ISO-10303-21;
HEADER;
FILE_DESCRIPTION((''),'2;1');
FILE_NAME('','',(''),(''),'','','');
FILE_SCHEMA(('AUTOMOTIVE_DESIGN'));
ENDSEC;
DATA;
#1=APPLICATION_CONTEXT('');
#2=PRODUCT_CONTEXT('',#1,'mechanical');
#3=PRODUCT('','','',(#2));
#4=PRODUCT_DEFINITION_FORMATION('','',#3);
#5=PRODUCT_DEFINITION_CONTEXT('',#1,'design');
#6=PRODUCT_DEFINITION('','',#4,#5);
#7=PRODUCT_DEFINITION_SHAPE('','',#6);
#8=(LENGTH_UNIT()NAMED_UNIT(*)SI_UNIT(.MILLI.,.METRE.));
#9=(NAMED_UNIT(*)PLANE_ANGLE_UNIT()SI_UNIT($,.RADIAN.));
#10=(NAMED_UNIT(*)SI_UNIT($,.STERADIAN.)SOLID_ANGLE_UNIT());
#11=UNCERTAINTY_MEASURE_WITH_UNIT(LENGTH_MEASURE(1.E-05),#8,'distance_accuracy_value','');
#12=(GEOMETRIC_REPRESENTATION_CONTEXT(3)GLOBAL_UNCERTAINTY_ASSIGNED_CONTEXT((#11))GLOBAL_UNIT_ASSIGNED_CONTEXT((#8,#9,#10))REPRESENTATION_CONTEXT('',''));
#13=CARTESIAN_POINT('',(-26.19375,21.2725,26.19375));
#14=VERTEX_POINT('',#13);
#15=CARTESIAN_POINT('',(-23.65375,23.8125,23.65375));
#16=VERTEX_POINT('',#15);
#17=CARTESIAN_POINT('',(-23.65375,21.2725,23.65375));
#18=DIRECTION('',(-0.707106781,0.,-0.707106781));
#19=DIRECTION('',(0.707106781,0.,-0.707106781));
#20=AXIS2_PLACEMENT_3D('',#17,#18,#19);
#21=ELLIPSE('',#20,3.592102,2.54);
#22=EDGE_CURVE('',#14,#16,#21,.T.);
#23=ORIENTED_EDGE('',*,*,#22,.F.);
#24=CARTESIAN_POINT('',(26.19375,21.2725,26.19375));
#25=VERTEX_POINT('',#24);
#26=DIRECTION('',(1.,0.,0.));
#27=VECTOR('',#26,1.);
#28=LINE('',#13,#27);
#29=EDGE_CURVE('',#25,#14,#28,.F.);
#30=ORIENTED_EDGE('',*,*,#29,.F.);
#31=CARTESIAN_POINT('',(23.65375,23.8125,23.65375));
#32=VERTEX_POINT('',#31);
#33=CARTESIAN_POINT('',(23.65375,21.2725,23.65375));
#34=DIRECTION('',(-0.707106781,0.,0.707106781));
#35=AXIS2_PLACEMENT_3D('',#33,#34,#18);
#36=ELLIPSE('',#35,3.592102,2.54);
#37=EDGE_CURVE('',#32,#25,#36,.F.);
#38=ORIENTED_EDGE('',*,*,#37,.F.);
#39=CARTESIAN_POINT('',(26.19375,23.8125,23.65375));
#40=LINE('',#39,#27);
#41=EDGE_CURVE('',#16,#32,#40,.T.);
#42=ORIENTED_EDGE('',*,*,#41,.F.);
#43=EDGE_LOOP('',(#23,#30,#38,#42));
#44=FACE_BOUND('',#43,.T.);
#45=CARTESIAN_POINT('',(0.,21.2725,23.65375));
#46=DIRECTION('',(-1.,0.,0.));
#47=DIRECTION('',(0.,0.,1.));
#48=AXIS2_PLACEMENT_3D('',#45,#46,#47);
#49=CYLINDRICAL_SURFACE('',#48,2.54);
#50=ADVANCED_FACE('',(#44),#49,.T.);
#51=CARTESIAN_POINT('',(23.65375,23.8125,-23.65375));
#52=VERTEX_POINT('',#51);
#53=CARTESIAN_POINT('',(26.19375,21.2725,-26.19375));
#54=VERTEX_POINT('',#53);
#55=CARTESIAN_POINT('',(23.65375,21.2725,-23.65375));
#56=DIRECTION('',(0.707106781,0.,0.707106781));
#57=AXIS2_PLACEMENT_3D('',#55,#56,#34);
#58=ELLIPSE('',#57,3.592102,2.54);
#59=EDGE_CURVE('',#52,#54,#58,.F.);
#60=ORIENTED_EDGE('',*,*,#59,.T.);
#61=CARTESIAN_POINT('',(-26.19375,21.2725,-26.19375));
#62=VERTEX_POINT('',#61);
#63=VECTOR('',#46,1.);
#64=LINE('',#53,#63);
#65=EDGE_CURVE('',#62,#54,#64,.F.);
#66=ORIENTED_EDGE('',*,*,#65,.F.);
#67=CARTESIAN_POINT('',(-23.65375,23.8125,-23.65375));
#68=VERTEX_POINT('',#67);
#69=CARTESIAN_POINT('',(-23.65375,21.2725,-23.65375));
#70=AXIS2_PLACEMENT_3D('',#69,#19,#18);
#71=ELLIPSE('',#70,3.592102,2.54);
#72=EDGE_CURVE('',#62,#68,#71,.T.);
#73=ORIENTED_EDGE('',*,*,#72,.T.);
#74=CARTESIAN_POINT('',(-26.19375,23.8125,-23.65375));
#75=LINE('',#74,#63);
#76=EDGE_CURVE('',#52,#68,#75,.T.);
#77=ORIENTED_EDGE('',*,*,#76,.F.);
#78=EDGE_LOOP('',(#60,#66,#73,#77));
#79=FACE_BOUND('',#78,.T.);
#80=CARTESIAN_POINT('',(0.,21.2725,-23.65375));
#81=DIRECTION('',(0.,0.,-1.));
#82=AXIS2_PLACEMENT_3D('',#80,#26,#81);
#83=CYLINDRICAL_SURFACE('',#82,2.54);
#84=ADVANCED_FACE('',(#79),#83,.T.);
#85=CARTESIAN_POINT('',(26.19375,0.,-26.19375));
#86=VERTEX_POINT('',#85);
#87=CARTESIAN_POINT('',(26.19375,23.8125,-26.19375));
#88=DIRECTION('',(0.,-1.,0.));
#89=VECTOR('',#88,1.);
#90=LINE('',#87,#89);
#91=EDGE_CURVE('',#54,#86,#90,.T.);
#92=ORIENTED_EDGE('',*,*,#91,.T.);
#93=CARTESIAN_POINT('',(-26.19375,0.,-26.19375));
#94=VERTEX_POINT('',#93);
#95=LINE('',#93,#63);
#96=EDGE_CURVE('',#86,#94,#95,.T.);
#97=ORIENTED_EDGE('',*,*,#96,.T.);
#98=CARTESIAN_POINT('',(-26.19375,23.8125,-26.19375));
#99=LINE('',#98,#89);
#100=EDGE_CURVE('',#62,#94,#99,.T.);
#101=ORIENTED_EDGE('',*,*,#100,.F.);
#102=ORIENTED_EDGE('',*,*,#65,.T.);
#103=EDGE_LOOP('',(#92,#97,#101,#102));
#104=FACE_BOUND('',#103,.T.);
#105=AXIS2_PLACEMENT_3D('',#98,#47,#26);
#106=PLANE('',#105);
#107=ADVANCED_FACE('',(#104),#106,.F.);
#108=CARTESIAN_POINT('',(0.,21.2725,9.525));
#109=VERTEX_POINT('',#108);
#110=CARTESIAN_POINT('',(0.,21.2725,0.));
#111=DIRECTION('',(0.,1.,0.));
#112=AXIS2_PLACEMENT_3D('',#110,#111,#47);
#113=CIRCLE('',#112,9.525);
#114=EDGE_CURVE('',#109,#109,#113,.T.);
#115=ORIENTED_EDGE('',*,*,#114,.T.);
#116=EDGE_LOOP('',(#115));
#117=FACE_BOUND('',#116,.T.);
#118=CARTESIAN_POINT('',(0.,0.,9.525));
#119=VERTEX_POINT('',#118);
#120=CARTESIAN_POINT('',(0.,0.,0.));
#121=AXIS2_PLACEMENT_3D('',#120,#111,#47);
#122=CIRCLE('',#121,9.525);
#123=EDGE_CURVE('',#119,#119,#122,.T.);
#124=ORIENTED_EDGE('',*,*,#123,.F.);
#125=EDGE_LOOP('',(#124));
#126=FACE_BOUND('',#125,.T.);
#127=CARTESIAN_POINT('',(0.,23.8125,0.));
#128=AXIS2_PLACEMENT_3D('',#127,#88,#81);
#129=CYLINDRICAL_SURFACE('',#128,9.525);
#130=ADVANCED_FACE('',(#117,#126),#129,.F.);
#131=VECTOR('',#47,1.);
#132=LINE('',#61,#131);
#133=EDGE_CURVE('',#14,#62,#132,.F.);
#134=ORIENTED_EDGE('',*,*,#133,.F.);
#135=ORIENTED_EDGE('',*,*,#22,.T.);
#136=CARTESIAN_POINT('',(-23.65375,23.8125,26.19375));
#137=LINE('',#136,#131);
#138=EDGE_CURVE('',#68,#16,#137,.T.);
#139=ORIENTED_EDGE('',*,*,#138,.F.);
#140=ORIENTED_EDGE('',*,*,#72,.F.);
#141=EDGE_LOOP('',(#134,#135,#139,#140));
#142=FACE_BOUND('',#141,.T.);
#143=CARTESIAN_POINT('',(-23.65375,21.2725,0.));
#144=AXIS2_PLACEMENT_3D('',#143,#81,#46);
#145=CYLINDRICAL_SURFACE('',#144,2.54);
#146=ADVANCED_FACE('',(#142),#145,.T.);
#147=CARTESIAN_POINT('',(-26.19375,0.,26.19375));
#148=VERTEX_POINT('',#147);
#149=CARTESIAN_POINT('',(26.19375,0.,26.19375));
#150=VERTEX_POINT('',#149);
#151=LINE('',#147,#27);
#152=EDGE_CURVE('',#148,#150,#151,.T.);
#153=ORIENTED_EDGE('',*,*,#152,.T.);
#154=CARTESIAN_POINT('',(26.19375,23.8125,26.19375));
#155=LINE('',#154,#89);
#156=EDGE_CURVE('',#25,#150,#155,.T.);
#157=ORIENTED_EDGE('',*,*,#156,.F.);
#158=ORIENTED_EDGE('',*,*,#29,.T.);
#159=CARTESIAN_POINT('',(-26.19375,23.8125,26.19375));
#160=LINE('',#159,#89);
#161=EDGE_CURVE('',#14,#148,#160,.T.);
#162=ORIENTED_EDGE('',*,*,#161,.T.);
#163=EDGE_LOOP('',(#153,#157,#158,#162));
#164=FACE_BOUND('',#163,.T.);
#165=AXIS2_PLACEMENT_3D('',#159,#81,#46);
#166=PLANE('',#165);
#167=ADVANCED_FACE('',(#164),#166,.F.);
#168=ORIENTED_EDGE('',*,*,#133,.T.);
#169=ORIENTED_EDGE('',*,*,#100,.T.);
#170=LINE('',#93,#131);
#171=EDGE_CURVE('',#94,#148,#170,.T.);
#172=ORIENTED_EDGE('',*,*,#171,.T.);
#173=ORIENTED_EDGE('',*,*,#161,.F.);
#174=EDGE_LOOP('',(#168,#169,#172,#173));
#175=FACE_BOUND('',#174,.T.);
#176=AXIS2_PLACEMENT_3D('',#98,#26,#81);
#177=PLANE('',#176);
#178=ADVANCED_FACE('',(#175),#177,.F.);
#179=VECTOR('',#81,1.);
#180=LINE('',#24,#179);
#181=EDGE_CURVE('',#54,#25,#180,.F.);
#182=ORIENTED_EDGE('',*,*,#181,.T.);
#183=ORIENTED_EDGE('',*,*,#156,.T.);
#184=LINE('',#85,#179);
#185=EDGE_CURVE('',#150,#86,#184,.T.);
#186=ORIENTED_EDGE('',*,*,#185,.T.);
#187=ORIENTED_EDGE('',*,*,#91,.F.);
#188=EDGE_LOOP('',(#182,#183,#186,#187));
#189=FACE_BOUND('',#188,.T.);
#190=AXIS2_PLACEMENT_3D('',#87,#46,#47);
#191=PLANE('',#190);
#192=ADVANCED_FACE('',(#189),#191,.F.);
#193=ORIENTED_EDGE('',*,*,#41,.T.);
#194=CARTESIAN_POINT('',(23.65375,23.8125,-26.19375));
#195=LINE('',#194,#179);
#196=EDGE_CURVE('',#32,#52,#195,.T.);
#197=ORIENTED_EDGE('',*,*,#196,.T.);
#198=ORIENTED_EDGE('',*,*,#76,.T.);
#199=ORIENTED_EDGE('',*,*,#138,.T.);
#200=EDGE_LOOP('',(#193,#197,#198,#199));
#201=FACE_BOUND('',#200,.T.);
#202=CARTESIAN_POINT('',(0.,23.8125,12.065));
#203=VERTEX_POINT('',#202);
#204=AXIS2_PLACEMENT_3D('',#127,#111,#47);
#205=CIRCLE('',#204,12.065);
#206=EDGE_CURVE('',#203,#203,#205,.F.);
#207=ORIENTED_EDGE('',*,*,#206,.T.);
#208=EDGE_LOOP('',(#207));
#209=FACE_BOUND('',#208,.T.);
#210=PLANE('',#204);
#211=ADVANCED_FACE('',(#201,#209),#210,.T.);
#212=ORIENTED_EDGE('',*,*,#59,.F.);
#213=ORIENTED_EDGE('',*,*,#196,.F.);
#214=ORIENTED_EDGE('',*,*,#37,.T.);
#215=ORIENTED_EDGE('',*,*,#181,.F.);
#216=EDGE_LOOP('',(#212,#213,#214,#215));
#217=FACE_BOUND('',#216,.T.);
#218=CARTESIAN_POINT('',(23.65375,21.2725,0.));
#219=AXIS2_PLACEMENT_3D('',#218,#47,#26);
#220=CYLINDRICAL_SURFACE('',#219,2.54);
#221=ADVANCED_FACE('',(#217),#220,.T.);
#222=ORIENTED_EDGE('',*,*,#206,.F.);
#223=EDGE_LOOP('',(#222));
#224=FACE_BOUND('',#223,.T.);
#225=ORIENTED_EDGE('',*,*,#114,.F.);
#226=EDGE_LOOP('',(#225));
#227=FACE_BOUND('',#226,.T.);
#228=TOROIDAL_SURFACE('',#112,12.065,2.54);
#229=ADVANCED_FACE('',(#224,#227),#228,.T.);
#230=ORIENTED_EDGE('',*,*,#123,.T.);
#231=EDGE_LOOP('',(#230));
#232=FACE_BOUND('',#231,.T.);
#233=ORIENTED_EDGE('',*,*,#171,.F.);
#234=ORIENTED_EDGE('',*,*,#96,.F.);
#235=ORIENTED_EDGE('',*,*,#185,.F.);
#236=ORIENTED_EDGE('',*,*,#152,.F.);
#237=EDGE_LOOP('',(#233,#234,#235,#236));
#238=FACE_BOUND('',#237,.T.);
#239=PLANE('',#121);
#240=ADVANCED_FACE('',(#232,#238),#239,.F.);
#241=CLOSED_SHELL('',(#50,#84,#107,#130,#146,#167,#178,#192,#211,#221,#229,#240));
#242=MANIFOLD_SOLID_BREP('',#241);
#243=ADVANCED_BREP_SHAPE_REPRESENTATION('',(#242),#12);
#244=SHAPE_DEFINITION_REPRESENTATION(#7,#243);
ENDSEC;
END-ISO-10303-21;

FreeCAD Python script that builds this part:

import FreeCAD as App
import Part
import Sketcher

V = App.Vector
Q = App.Units.Quantity


def edges_at(feature, points):
    """Names of the edges that pass closest to the given points."""
    edges = feature.Shape.Edges
    near = lambda p: min(range(len(edges)), key=lambda i: edges[i].distToShape(Part.Vertex(*p))[0])
    return sorted({f"Edge{near(p) + 1}" for p in points})

doc = App.newDocument("Part")
body = doc.addObject("PartDesign::Body", "Body")

# Sketch on XZ plane
sketch1 = doc.addObject("Sketcher::SketchObject", "Sketch")
body.addObject(sketch1)
sketch1.AttachmentSupport = (doc.XZ_Plane, [""])
sketch1.MapMode = "FlatFace"
sketch1.addGeometry(Part.LineSegment(V(-26, -26, 0), V(-26, 26, 0)), False)
sketch1.addGeometry(Part.LineSegment(V(-26, 26, 0), V(26, 26, 0)), False)
sketch1.addGeometry(Part.LineSegment(V(26, 26, 0), V(26, -26, 0)), False)
sketch1.addGeometry(Part.LineSegment(V(26, -26, 0), V(-26, -26, 0)), False)
sketch1.addGeometry(Part.Circle(V(0, 0, 0), V(0, 0, 1), 10), False)
sketch1.addConstraint(Sketcher.Constraint("Coincident", 0, 2, 1, 1))
sketch1.addConstraint(Sketcher.Constraint("Coincident", 1, 2, 2, 1))
sketch1.addConstraint(Sketcher.Constraint("Coincident", 2, 2, 3, 1))
sketch1.addConstraint(Sketcher.Constraint("Coincident", 3, 2, 0, 1))
sketch1.addConstraint(Sketcher.Constraint("Vertical", 0))
sketch1.addConstraint(Sketcher.Constraint("Horizontal", 1))
sketch1.addConstraint(Sketcher.Constraint("Vertical", 2))
sketch1.addConstraint(Sketcher.Constraint("Horizontal", 3))
sketch1.addConstraint(Sketcher.Constraint("Coincident", 4, 3, -1, 1))
sketch1.addConstraint(Sketcher.Constraint("Symmetric", 0, 2, 2, 2, -1, 1))
sketch1.addConstraint(Sketcher.Constraint("Equal", 3, 0))
sketch1.addConstraint(Sketcher.Constraint("Diameter", 4, Q("0.75 in")))
sketch1.addConstraint(Sketcher.Constraint("DistanceX", 1, 1, 1, 2, Q("2.0625 in")))
pad1 = doc.addObject("PartDesign::Pad", "Pad")
body.addObject(pad1)
pad1.Profile = sketch1
pad1.Length = Q("0.9375 in")
pad1.Reversed = True
doc.recompute()

fillet = doc.addObject("PartDesign::Fillet", "Fillet")
body.addObject(fillet)
fillet.Base = (pad1, edges_at(pad1, [
    (26.194, 23.812, 0),
    (0, 23.812, -9.525),
    (0, 23.812, -26.194),
    (-26.194, 23.812, 0),
    (0, 23.812, 26.194),
]))
fillet.Radius = Q("0.1 in")

doc.recompute()
